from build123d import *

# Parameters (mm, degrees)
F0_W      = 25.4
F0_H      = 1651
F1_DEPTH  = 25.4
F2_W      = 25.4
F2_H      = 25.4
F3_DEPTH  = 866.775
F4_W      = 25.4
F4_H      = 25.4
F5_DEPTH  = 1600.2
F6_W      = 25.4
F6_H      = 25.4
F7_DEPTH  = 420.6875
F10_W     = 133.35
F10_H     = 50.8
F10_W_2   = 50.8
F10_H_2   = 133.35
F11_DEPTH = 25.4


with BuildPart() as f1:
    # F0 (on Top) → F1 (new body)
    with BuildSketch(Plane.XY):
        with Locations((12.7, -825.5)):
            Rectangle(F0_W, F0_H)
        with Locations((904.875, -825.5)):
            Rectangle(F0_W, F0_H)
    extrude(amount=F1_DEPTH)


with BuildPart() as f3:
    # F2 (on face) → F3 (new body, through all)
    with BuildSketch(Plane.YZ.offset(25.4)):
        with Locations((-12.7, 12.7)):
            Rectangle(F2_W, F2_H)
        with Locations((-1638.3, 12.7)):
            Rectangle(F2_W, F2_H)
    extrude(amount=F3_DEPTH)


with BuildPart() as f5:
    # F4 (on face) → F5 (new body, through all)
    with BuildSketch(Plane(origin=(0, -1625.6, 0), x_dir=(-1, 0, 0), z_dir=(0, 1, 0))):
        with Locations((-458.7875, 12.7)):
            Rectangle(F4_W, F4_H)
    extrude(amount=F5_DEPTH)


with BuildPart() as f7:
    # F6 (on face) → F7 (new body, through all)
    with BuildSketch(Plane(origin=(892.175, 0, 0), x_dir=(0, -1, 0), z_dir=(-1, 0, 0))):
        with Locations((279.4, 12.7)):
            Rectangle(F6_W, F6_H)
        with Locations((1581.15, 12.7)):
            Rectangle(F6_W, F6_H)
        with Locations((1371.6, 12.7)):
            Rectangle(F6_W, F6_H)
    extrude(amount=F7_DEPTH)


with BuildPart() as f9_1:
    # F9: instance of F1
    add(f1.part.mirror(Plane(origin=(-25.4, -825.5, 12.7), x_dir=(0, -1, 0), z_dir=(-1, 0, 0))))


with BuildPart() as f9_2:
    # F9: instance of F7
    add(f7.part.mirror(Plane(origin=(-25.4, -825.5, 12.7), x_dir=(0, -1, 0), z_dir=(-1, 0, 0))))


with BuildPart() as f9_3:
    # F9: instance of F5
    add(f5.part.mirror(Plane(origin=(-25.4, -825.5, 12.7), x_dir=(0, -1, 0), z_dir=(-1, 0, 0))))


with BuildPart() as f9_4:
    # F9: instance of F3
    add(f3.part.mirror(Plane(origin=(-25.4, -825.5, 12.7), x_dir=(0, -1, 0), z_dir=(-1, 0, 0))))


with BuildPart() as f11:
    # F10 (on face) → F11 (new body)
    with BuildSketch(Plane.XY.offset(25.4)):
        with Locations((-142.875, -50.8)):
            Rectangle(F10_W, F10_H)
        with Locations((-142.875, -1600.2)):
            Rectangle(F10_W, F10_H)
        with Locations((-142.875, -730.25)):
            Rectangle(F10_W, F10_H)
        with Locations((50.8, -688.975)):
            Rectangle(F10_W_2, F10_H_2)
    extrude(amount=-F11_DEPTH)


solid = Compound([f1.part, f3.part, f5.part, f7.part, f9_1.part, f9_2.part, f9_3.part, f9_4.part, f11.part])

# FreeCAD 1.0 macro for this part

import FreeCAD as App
import Part
import Sketcher
Q = App.Units.Quantity


def add_polygon(sketch, points):
    """Adds a closed chain of lines whose ends are joined by coincident constraints."""
    first, n = sketch.GeometryCount, len(points)
    for a, b in zip(points, points[1:] + points[:1]):
        sketch.addGeometry(Part.LineSegment(App.Vector(*a, 0), App.Vector(*b, 0)), False)
    for i in range(n):
        sketch.addConstraint(Sketcher.Constraint("Coincident", first + i, 2, first + (i + 1) % n, 1))

doc = App.newDocument("Part")
params = doc.addObject("Spreadsheet::Sheet", "Params")
for row, (alias, value) in enumerate([
    ("sketch1_width", "1 in"),
    ("sketch1_height", "65 in"),
    ("pad1_length", "1 in"),
    ("sketch2_width", "1 in"),
    ("pad2_length", "34.125 in"),
    ("sketch3_width", "1 in"),
    ("pad3_length", "63 in"),
    ("sketch4_width", "1 in"),
    ("pad4_length", "16.5625 in"),
    ("sketch5_width", "2 in"),
    ("sketch5_width2", "5.25 in"),
    ("pad5_length", "1 in"),
], start=1):
    params.set(f"A{row}", alias)
    params.set(f"B{row}", "=" + value)
    params.setAlias(f"B{row}", alias)

body = doc.addObject("PartDesign::Body", "Body")
body.AllowCompound = True

# Sketch on XY plane
sketch1 = body.newObject("Sketcher::SketchObject", "Sketch")
sketch1.AttachmentSupport = (doc.getObject("XY_Plane"), [""])
sketch1.MapMode = "FlatFace"
add_polygon(sketch1, [(0, 0), (0, -1651), (25, -1651), (25, 0)])  # lines 0-3
add_polygon(sketch1, [(892, 0), (892, -1651), (918, -1651), (918, 0)])  # lines 4-7
sketch1.addConstraint(Sketcher.Constraint("Vertical", 0))
sketch1.addConstraint(Sketcher.Constraint("Horizontal", 1))
sketch1.addConstraint(Sketcher.Constraint("Vertical", 2))
sketch1.addConstraint(Sketcher.Constraint("Horizontal", 3))
sketch1.addConstraint(Sketcher.Constraint("Vertical", 4))
sketch1.addConstraint(Sketcher.Constraint("Horizontal", 5))
sketch1.addConstraint(Sketcher.Constraint("Vertical", 6))
sketch1.addConstraint(Sketcher.Constraint("Horizontal", 7))
sketch1.addConstraint(Sketcher.Constraint("Coincident", 3, 2, -1, 1))
sketch1.addConstraint(Sketcher.Constraint("PointOnObject", 6, 2, -1))
sketch1.addConstraint(Sketcher.Constraint("Horizontal", 1, 2, 4, 2))
sketch1.addConstraint(Sketcher.Constraint("Equal", 3, 5))
sketch1.addConstraint(Sketcher.Constraint("DistanceX", 1, 1, 1, 2, Q("1 in")))
sketch1.addConstraint(Sketcher.Constraint("DistanceY", 0, 2, 0, 1, Q("65 in")))
sketch1.addConstraint(Sketcher.Constraint("DistanceX", -1, 1, 4, 2, Q("35.125 in")))
sketch1.setExpression("Constraints[20]", "Params.sketch1_width")
sketch1.setExpression("Constraints[21]", "Params.sketch1_height")
pad1 = body.newObject("PartDesign::Pad", "Pad")
pad1.Profile = sketch1
pad1.setExpression("Length", "Params.pad1_length")
body2 = doc.addObject("PartDesign::Body", "Body001")
body2.AllowCompound = True

# Sketch on YZ plane
sketch2 = body2.newObject("Sketcher::SketchObject", "Sketch001")
sketch2.AttachmentSupport = (doc.getObject("YZ_Plane001"), [""])
sketch2.MapMode = "FlatFace"
sketch2.AttachmentOffset = App.Placement(App.Vector(0, 0, 1 * 25.4), App.Rotation())
add_polygon(sketch2, [(-25, 25), (-25, 0), (0, 0), (0, 25)])  # lines 0-3
add_polygon(sketch2, [(-1651, 25), (-1651, 0), (-1626, 0), (-1626, 25)])  # lines 4-7
sketch2.addConstraint(Sketcher.Constraint("Vertical", 0))
sketch2.addConstraint(Sketcher.Constraint("Horizontal", 1))
sketch2.addConstraint(Sketcher.Constraint("Vertical", 2))
sketch2.addConstraint(Sketcher.Constraint("Horizontal", 3))
sketch2.addConstraint(Sketcher.Constraint("Vertical", 4))
sketch2.addConstraint(Sketcher.Constraint("Horizontal", 5))
sketch2.addConstraint(Sketcher.Constraint("Vertical", 6))
sketch2.addConstraint(Sketcher.Constraint("Horizontal", 7))
sketch2.addConstraint(Sketcher.Constraint("Coincident", 1, 2, -1, 1))
sketch2.addConstraint(Sketcher.Constraint("PointOnObject", 4, 2, -1))
sketch2.addConstraint(Sketcher.Constraint("Horizontal", 3, 2, 6, 2))
sketch2.addConstraint(Sketcher.Constraint("Equal", 3, 5))
sketch2.addConstraint(Sketcher.Constraint("Equal", 7, 0))
sketch2.addConstraint(Sketcher.Constraint("DistanceX", 1, 1, 1, 2, Q("1 in")))
sketch2.addConstraint(Sketcher.Constraint("DistanceX", 4, 2, -1, 1, Q("65 in")))
sketch2.setExpression("Constraints[21]", "Params.sketch2_width")
pad2 = body2.newObject("PartDesign::Pad", "Pad001")
pad2.Profile = sketch2
pad2.setExpression("Length", "Params.pad2_length")
body3 = doc.addObject("PartDesign::Body", "Body002")

# Sketch on XZ plane
sketch3 = body3.newObject("Sketcher::SketchObject", "Sketch002")
sketch3.AttachmentSupport = (doc.getObject("XZ_Plane002"), [""])
sketch3.MapMode = "FlatFace"
sketch3.AttachmentOffset = App.Placement(App.Vector(0, 0, 64 * 25.4), App.Rotation())
add_polygon(sketch3, [(471, 25), (471, 0), (446, 0), (446, 25)])  # lines 0-3
sketch3.addConstraint(Sketcher.Constraint("Vertical", 0))
sketch3.addConstraint(Sketcher.Constraint("Horizontal", 1))
sketch3.addConstraint(Sketcher.Constraint("Vertical", 2))
sketch3.addConstraint(Sketcher.Constraint("Horizontal", 3))
sketch3.addConstraint(Sketcher.Constraint("PointOnObject", 0, 2, -1))
sketch3.addConstraint(Sketcher.Constraint("Equal", 3, 0))
sketch3.addConstraint(Sketcher.Constraint("DistanceX", 1, 2, 1, 1, Q("1 in")))
sketch3.addConstraint(Sketcher.Constraint("DistanceX", -1, 1, 0, 2, Q("18.5625 in")))
sketch3.setExpression("Constraints[10]", "Params.sketch3_width")
pad3 = body3.newObject("PartDesign::Pad", "Pad002")
pad3.Profile = sketch3
pad3.setExpression("Length", "Params.pad3_length")
pad3.Reversed = True
body4 = doc.addObject("PartDesign::Body", "Body003")
body4.AllowCompound = True

# Sketch on YZ plane
sketch4 = body4.newObject("Sketcher::SketchObject", "Sketch003")
sketch4.AttachmentSupport = (doc.getObject("YZ_Plane003"), [""])
sketch4.MapMode = "FlatFace"
sketch4.AttachmentOffset = App.Placement(App.Vector(0, 0, 35.125 * 25.4), App.Rotation())
add_polygon(sketch4, [(-266.7, 25.4), (-266.7, 0), (-292.1, 0), (-292.1, 25.4)])  # lines 0-3
add_polygon(sketch4, [(-1568.45, 25.4), (-1568.45, 0), (-1593.85, 0), (-1593.85, 25.4)])  # lines 4-7
add_polygon(sketch4, [(-1358.9, 25.4), (-1358.9, 0), (-1384.3, 0), (-1384.3, 25.4)])  # lines 8-11
sketch4.addConstraint(Sketcher.Constraint("Vertical", 0))
sketch4.addConstraint(Sketcher.Constraint("Horizontal", 1))
sketch4.addConstraint(Sketcher.Constraint("Vertical", 2))
sketch4.addConstraint(Sketcher.Constraint("Horizontal", 3))
sketch4.addConstraint(Sketcher.Constraint("Vertical", 4))
sketch4.addConstraint(Sketcher.Constraint("Horizontal", 5))
sketch4.addConstraint(Sketcher.Constraint("Vertical", 6))
sketch4.addConstraint(Sketcher.Constraint("Horizontal", 7))
sketch4.addConstraint(Sketcher.Constraint("Vertical", 8))
sketch4.addConstraint(Sketcher.Constraint("Horizontal", 9))
sketch4.addConstraint(Sketcher.Constraint("Vertical", 10))
sketch4.addConstraint(Sketcher.Constraint("Horizontal", 11))
sketch4.addConstraint(Sketcher.Constraint("PointOnObject", 0, 2, -1))
sketch4.addConstraint(Sketcher.Constraint("PointOnObject", 4, 2, -1))
sketch4.addConstraint(Sketcher.Constraint("PointOnObject", 8, 2, -1))
sketch4.addConstraint(Sketcher.Constraint("Horizontal", 3, 2, 6, 2))
sketch4.addConstraint(Sketcher.Constraint("Horizontal", 7, 2, 10, 2))
sketch4.addConstraint(Sketcher.Constraint("Equal", 3, 5))
sketch4.addConstraint(Sketcher.Constraint("Equal", 7, 9))
sketch4.addConstraint(Sketcher.Constraint("Equal", 11, 0))
sketch4.addConstraint(Sketcher.Constraint("DistanceX", 1, 2, 1, 1, Q("1 in")))
sketch4.addConstraint(Sketcher.Constraint("DistanceX", 8, 2, 1, 2, Q("42 in")))
sketch4.addConstraint(Sketcher.Constraint("DistanceX", 0, 2, -1, 1, Q("10.5 in")))
sketch4.addConstraint(Sketcher.Constraint("DistanceX", 4, 2, -1, 1, Q("61.75 in")))
sketch4.setExpression("Constraints[32]", "Params.sketch4_width")
pad4 = body4.newObject("PartDesign::Pad", "Pad003")
pad4.Profile = sketch4
pad4.setExpression("Length", "Params.pad4_length")
pad4.Reversed = True
body5 = doc.addObject("PartDesign::Body", "Body004")
body5.AllowCompound = True
doc.recompute()

mirroring = doc.addObject("Part::Mirroring", "Mirroring")
mirroring.Source = body
mirroring.Base = App.Vector(-25.4, -825.5, 12.7)
mirroring.Normal = App.Vector(-1, 0, 0)
body5.BaseFeature = mirroring
doc.recompute()
body6 = doc.addObject("PartDesign::Body", "Body005")
body6.AllowCompound = True
doc.recompute()

mirroring2 = doc.addObject("Part::Mirroring", "Mirroring001")
mirroring2.Source = body4
mirroring2.Base = App.Vector(-25.4, -825.5, 12.7)
mirroring2.Normal = App.Vector(-1, 0, 0)
body6.BaseFeature = mirroring2
doc.recompute()
body7 = doc.addObject("PartDesign::Body", "Body006")
doc.recompute()

mirroring3 = doc.addObject("Part::Mirroring", "Mirroring002")
mirroring3.Source = body3
mirroring3.Base = App.Vector(-25.4, -825.5, 12.7)
mirroring3.Normal = App.Vector(-1, 0, 0)
body7.BaseFeature = mirroring3
doc.recompute()
body8 = doc.addObject("PartDesign::Body", "Body007")
body8.AllowCompound = True
doc.recompute()

mirroring4 = doc.addObject("Part::Mirroring", "Mirroring003")
mirroring4.Source = body2
mirroring4.Base = App.Vector(-25.4, -825.5, 12.7)
mirroring4.Normal = App.Vector(-1, 0, 0)
body8.BaseFeature = mirroring4
doc.recompute()
body9 = doc.addObject("PartDesign::Body", "Body008")
body9.AllowCompound = True

# Sketch on XY plane
sketch5 = body9.newObject("Sketcher::SketchObject", "Sketch004")
sketch5.AttachmentSupport = (doc.getObject("XY_Plane008"), [""])
sketch5.MapMode = "FlatFace"
sketch5.AttachmentOffset = App.Placement(App.Vector(0, 0, 1 * 25.4), App.Rotation())
add_polygon(sketch5, [(-210, -25), (-210, -76), (-76, -76), (-76, -25)])  # lines 0-3
add_polygon(sketch5, [(-210, -1575), (-210, -1626), (-76, -1626), (-76, -1575)])  # lines 4-7
add_polygon(sketch5, [(-210, -705), (-210, -756), (-76, -756), (-76, -705)])  # lines 8-11
add_polygon(sketch5, [(25, -622), (25, -756), (76, -756), (76, -622)])  # lines 12-15
sketch5.addConstraint(Sketcher.Constraint("Vertical", 0))
sketch5.addConstraint(Sketcher.Constraint("Horizontal", 1))
sketch5.addConstraint(Sketcher.Constraint("Vertical", 2))
sketch5.addConstraint(Sketcher.Constraint("Horizontal", 3))
sketch5.addConstraint(Sketcher.Constraint("Vertical", 4))
sketch5.addConstraint(Sketcher.Constraint("Horizontal", 5))
sketch5.addConstraint(Sketcher.Constraint("Vertical", 6))
sketch5.addConstraint(Sketcher.Constraint("Horizontal", 7))
sketch5.addConstraint(Sketcher.Constraint("Vertical", 8))
sketch5.addConstraint(Sketcher.Constraint("Horizontal", 9))
sketch5.addConstraint(Sketcher.Constraint("Vertical", 10))
sketch5.addConstraint(Sketcher.Constraint("Horizontal", 11))
sketch5.addConstraint(Sketcher.Constraint("Vertical", 12))
sketch5.addConstraint(Sketcher.Constraint("Horizontal", 13))
sketch5.addConstraint(Sketcher.Constraint("Vertical", 14))
sketch5.addConstraint(Sketcher.Constraint("Horizontal", 15))
sketch5.addConstraint(Sketcher.Constraint("Symmetric", 9, 2, 13, 2, -2))
sketch5.addConstraint(Sketcher.Constraint("Vertical", 3, 2, 4, 2))
sketch5.addConstraint(Sketcher.Constraint("Vertical", 2, 2, 5, 2))
sketch5.addConstraint(Sketcher.Constraint("Vertical", 7, 2, 8, 2))
sketch5.addConstraint(Sketcher.Constraint("Vertical", 6, 2, 9, 2))
sketch5.addConstraint(Sketcher.Constraint("Equal", 15, 0))
sketch5.addConstraint(Sketcher.Constraint("Equal", 2, 4))
sketch5.addConstraint(Sketcher.Constraint("Equal", 6, 8))
sketch5.addConstraint(Sketcher.Constraint("Equal", 11, 12))
sketch5.addConstraint(Sketcher.Constraint("DistanceX", 13, 1, 13, 2, Q("2 in")))
sketch5.addConstraint(Sketcher.Constraint("DistanceY", 0, 2, -1, 1, Q("3 in")))
sketch5.addConstraint(Sketcher.Constraint("DistanceX", 1, 2, -1, 1, Q("3 in")))
sketch5.addConstraint(Sketcher.Constraint("DistanceY", 4, 2, -1, 1, Q("64 in")))
sketch5.addConstraint(Sketcher.Constraint("DistanceX", 1, 1, 1, 2, Q("5.25 in")))
sketch5.addConstraint(Sketcher.Constraint("DistanceY", 14, 2, -1, 1, Q("24.5 in")))
sketch5.setExpression("Constraints[41]", "Params.sketch5_width")
sketch5.setExpression("Constraints[45]", "Params.sketch5_width2")
pad5 = body9.newObject("PartDesign::Pad", "Pad004")
pad5.Profile = sketch5
pad5.setExpression("Length", "Params.pad5_length")
pad5.Reversed = True
mirroring.Visibility = False
mirroring2.Visibility = False
mirroring3.Visibility = False
mirroring4.Visibility = False

doc.recompute()
